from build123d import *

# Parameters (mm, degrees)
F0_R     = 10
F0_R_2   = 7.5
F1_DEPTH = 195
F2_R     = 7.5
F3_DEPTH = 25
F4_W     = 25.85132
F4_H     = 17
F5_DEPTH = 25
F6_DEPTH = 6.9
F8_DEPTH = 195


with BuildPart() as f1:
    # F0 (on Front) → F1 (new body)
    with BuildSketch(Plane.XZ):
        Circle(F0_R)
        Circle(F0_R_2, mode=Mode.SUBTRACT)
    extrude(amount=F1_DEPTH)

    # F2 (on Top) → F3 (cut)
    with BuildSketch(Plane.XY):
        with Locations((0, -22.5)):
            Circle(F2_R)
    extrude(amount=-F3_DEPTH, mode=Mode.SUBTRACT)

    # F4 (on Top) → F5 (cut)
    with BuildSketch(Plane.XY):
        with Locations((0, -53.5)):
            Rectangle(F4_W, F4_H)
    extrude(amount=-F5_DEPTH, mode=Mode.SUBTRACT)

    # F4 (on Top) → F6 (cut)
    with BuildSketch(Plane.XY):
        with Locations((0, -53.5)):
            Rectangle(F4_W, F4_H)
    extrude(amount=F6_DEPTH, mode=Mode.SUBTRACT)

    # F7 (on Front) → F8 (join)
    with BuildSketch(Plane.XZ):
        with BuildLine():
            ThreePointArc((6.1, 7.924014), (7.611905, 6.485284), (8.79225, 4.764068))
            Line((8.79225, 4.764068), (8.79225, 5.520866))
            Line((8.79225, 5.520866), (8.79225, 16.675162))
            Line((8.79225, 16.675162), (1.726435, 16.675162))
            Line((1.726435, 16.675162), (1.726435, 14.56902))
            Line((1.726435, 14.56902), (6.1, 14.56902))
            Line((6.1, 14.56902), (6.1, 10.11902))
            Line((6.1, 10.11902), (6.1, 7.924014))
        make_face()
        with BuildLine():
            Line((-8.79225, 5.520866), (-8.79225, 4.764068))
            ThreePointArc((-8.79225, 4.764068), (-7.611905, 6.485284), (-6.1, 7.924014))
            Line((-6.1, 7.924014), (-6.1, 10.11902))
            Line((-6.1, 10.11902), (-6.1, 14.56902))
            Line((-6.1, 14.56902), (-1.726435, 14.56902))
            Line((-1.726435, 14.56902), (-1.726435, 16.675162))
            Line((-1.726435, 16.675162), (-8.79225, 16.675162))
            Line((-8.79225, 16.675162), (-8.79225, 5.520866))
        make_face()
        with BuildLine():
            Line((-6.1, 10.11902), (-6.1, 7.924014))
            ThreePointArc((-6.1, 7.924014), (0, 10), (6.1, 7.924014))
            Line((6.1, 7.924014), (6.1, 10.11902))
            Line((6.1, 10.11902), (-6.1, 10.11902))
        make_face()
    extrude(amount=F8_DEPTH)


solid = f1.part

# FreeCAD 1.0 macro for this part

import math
import FreeCAD as App
import Part
import Sketcher
Q = App.Units.Quantity


def add_polygon(sketch, points):
    """Adds a closed chain of lines whose ends are joined by coincident constraints."""
    first, n = sketch.GeometryCount, len(points)
    for a, b in zip(points, points[1:] + points[:1]):
        sketch.addGeometry(Part.LineSegment(App.Vector(*a, 0), App.Vector(*b, 0)), False)
    for i in range(n):
        sketch.addConstraint(Sketcher.Constraint("Coincident", first + i, 2, first + (i + 1) % n, 1))

doc = App.newDocument("Part")
params = doc.addObject("Spreadsheet::Sheet", "Params")
for row, (alias, value) in enumerate([
    ("sketch1_diameter", "20 mm"),
    ("sketch1_diameter2", "15 mm"),
    ("pad1_length", "195 mm"),
    ("sketch2_diameter", "15 mm"),
    ("pocket1_length", "25 mm"),
    ("sketch3_height", "17 mm"),
    ("pocket2_length", "25 mm"),
    ("sketch4_height", "17 mm"),
    ("pocket3_length", "6.9 mm"),
    ("sketch5_radius", "9.999999 mm"),
    ("sketch5_width", "12.2 mm"),
    ("sketch5_height", "4.45 mm"),
    ("pad2_length", "195 mm"),
], start=1):
    params.set(f"A{row}", alias)
    params.set(f"B{row}", "=" + value)
    params.setAlias(f"B{row}", alias)

body = doc.addObject("PartDesign::Body", "Body")

sketch1 = body.newObject("Sketcher::SketchObject", "Sketch")
sketch1.AttachmentSupport = (doc.getObject("XZ_Plane"), [""])
sketch1.MapMode = "FlatFace"
sketch1.addGeometry(Part.Circle(App.Vector(0, 0, 0), App.Vector(0, 0, 1), 10), False)
sketch1.addGeometry(Part.Circle(App.Vector(0, 0, 0), App.Vector(0, 0, 1), 8), False)
sketch1.addConstraint(Sketcher.Constraint("Coincident", 0, 3, -1, 1))
sketch1.addConstraint(Sketcher.Constraint("Coincident", 1, 3, -1, 1))
sketch1.addConstraint(Sketcher.Constraint("Diameter", 0, Q("20 mm")))
sketch1.addConstraint(Sketcher.Constraint("Diameter", 1, Q("15 mm")))
sketch1.setExpression("Constraints[2]", "Params.sketch1_diameter")
sketch1.setExpression("Constraints[3]", "Params.sketch1_diameter2")
pad1 = body.newObject("PartDesign::Pad", "Pad")
pad1.Profile = sketch1
pad1.setExpression("Length", "Params.pad1_length")

sketch2 = body.newObject("Sketcher::SketchObject", "Sketch001")
sketch2.AttachmentSupport = (doc.getObject("XY_Plane"), [""])
sketch2.MapMode = "FlatFace"
sketch2.addGeometry(Part.Circle(App.Vector(0, -22, 0), App.Vector(0, 0, 1), 8), False)
sketch2.addConstraint(Sketcher.Constraint("PointOnObject", 0, 3, -2))
sketch2.addConstraint(Sketcher.Constraint("Diameter", 0, Q("15 mm")))
sketch2.addConstraint(Sketcher.Constraint("DistanceY", 0, 3, -1, 1, Q("22.5 mm")))
sketch2.setExpression("Constraints[1]", "Params.sketch2_diameter")
pocket1 = body.newObject("PartDesign::Pocket", "Pocket")
pocket1.Profile = sketch2
pocket1.setExpression("Length", "Params.pocket1_length")

sketch3 = body.newObject("Sketcher::SketchObject", "Sketch002")
sketch3.AttachmentSupport = (doc.getObject("XY_Plane"), [""])
sketch3.MapMode = "FlatFace"
add_polygon(sketch3, [(-13, -45), (-13, -62), (13, -62), (13, -45)])
sketch3.addConstraint(Sketcher.Constraint("Vertical", 0))
sketch3.addConstraint(Sketcher.Constraint("Horizontal", 1))
sketch3.addConstraint(Sketcher.Constraint("Vertical", 2))
sketch3.addConstraint(Sketcher.Constraint("Horizontal", 3))
sketch3.addConstraint(Sketcher.Constraint("DistanceY", 0, 2, 0, 1, Q("17 mm")))
sketch3.addConstraint(Sketcher.Constraint("DistanceY", 0, 2, -1, 1, Q("62 mm")))
sketch3.addConstraint(Sketcher.Constraint("DistanceX", 1, 1, 1, 2, Q("25.85132 mm")))
sketch3.addConstraint(Sketcher.Constraint("DistanceX", 0, 2, -1, 1, Q("12.92566 mm")))
sketch3.setExpression("Constraints[8]", "Params.sketch3_height")
pocket2 = body.newObject("PartDesign::Pocket", "Pocket001")
pocket2.Profile = sketch3
pocket2.setExpression("Length", "Params.pocket2_length")

sketch4 = body.newObject("Sketcher::SketchObject", "Sketch003")
sketch4.AttachmentSupport = (doc.getObject("XY_Plane"), [""])
sketch4.MapMode = "FlatFace"
add_polygon(sketch4, [(-13, -45), (-13, -62), (13, -62), (13, -45)])
sketch4.addConstraint(Sketcher.Constraint("Vertical", 0))
sketch4.addConstraint(Sketcher.Constraint("Horizontal", 1))
sketch4.addConstraint(Sketcher.Constraint("Vertical", 2))
sketch4.addConstraint(Sketcher.Constraint("Horizontal", 3))
sketch4.addConstraint(Sketcher.Constraint("DistanceY", 0, 2, 0, 1, Q("17 mm")))
sketch4.addConstraint(Sketcher.Constraint("DistanceY", 0, 2, -1, 1, Q("62 mm")))
sketch4.addConstraint(Sketcher.Constraint("DistanceX", 1, 1, 1, 2, Q("25.85132 mm")))
sketch4.addConstraint(Sketcher.Constraint("DistanceX", 0, 2, -1, 1, Q("12.92566 mm")))
sketch4.setExpression("Constraints[8]", "Params.sketch4_height")
pocket3 = body.newObject("PartDesign::Pocket", "Pocket002")
pocket3.Profile = sketch4
pocket3.setExpression("Length", "Params.pocket3_length")
pocket3.Reversed = True

sketch5 = body.newObject("Sketcher::SketchObject", "Sketch004")
sketch5.AttachmentSupport = (doc.getObject("XZ_Plane"), [""])
sketch5.MapMode = "FlatFace"
sketch5.addGeometry(Part.ArcOfCircle(Part.Circle(App.Vector(0, 0, 0), App.Vector(0, 0, 1), 10), math.radians(28), math.radians(52)), False)
sketch5.addGeometry(Part.LineSegment(App.Vector(8.8, 4.8, 0), App.Vector(8.8, 16.7, 0)), False)
sketch5.addGeometry(Part.LineSegment(App.Vector(8.8, 16.7, 0), App.Vector(1.7, 16.7, 0)), False)
sketch5.addGeometry(Part.LineSegment(App.Vector(1.7, 16.7, 0), App.Vector(1.7, 14.6, 0)), False)
sketch5.addGeometry(Part.LineSegment(App.Vector(1.7, 14.6, 0), App.Vector(6.1, 14.6, 0)), False)
sketch5.addGeometry(Part.LineSegment(App.Vector(6.1, 14.6, 0), App.Vector(6.1, 10.1, 0)), False)
sketch5.addGeometry(Part.LineSegment(App.Vector(6.1, 10.1, 0), App.Vector(-6.1, 10.1, 0)), False)
sketch5.addGeometry(Part.LineSegment(App.Vector(-6.1, 10.1, 0), App.Vector(-6.1, 14.6, 0)), False)
sketch5.addGeometry(Part.LineSegment(App.Vector(-6.1, 14.6, 0), App.Vector(-1.7, 14.6, 0)), False)
sketch5.addGeometry(Part.LineSegment(App.Vector(-1.7, 14.6, 0), App.Vector(-1.7, 16.7, 0)), False)
sketch5.addGeometry(Part.LineSegment(App.Vector(-1.7, 16.7, 0), App.Vector(-8.8, 16.7, 0)), False)
sketch5.addGeometry(Part.LineSegment(App.Vector(-8.8, 16.7, 0), App.Vector(-8.8, 4.8, 0)), False)
sketch5.addGeometry(Part.ArcOfCircle(Part.Circle(App.Vector(0, 0, 0), App.Vector(0, 0, 1), 10), math.radians(128), math.radians(152)), False)
sketch5.addGeometry(Part.ArcOfCircle(Part.Circle(App.Vector(0, 0, 0), App.Vector(0, 0, 1), 10), math.radians(52), math.radians(128)), False)
sketch5.addConstraint(Sketcher.Constraint("Coincident", 0, 1, 1, 1))
sketch5.addConstraint(Sketcher.Constraint("Coincident", 1, 2, 2, 1))
sketch5.addConstraint(Sketcher.Constraint("Coincident", 2, 2, 3, 1))
sketch5.addConstraint(Sketcher.Constraint("Coincident", 3, 2, 4, 1))
sketch5.addConstraint(Sketcher.Constraint("Coincident", 4, 2, 5, 1))
sketch5.addConstraint(Sketcher.Constraint("Coincident", 5, 2, 6, 1))
sketch5.addConstraint(Sketcher.Constraint("Coincident", 6, 2, 7, 1))
sketch5.addConstraint(Sketcher.Constraint("Coincident", 7, 2, 8, 1))
sketch5.addConstraint(Sketcher.Constraint("Coincident", 8, 2, 9, 1))
sketch5.addConstraint(Sketcher.Constraint("Coincident", 9, 2, 10, 1))
sketch5.addConstraint(Sketcher.Constraint("Coincident", 10, 2, 11, 1))
sketch5.addConstraint(Sketcher.Constraint("Coincident", 11, 2, 12, 2))
sketch5.addConstraint(Sketcher.Constraint("Tangent", 12, 1, 13, 2))
sketch5.addConstraint(Sketcher.Constraint("Tangent", 13, 1, 0, 2))
sketch5.addConstraint(Sketcher.Constraint("Vertical", 1))
sketch5.addConstraint(Sketcher.Constraint("Horizontal", 2))
sketch5.addConstraint(Sketcher.Constraint("Vertical", 3))
sketch5.addConstraint(Sketcher.Constraint("Horizontal", 4))
sketch5.addConstraint(Sketcher.Constraint("Vertical", 5))
sketch5.addConstraint(Sketcher.Constraint("Horizontal", 6))
sketch5.addConstraint(Sketcher.Constraint("Vertical", 7))
sketch5.addConstraint(Sketcher.Constraint("Horizontal", 8))
sketch5.addConstraint(Sketcher.Constraint("Vertical", 9))
sketch5.addConstraint(Sketcher.Constraint("Horizontal", 10))
sketch5.addConstraint(Sketcher.Constraint("Vertical", 11))
sketch5.addConstraint(Sketcher.Constraint("Coincident", 13, 3, -1, 1))
sketch5.addConstraint(Sketcher.Constraint("Equal", 0, 12))
sketch5.addConstraint(Sketcher.Constraint("Symmetric", 4, 2, 7, 2, -2))
sketch5.addConstraint(Sketcher.Constraint("Symmetric", 2, 2, 9, 2, -2))
sketch5.addConstraint(Sketcher.Constraint("Horizontal", 0, 1, 11, 2))
sketch5.addConstraint(Sketcher.Constraint("Horizontal", 12, 1, 13, 1))
sketch5.addConstraint(Sketcher.Constraint("Vertical", 7, 2, 12, 1))
sketch5.addConstraint(Sketcher.Constraint("Radius", 13, Q("9.999999 mm")))
sketch5.addConstraint(Sketcher.Constraint("DistanceX", 6, 2, 6, 1, Q("12.2 mm")))
sketch5.addConstraint(Sketcher.Constraint("DistanceY", 5, 2, 5, 1, Q("4.45 mm")))
sketch5.addConstraint(Sketcher.Constraint("Radius", 0, Q("9.999988 mm")))
sketch5.addConstraint(Sketcher.Constraint("DistanceX", 2, 2, 2, 1, Q("7.065815 mm")))
sketch5.addConstraint(Sketcher.Constraint("DistanceX", 4, 1, 4, 2, Q("4.373565 mm")))
sketch5.addConstraint(Sketcher.Constraint("DistanceY", 1, 1, 1, 2, Q("11.911094 mm")))
sketch5.addConstraint(Sketcher.Constraint("DistanceY", 3, 2, 3, 1, Q("2.106142 mm")))
sketch5.setExpression("Constraints[32]", "Params.sketch5_radius")
sketch5.setExpression("Constraints[33]", "Params.sketch5_width")
sketch5.setExpression("Constraints[34]", "Params.sketch5_height")
pad2 = body.newObject("PartDesign::Pad", "Pad001")
pad2.Profile = sketch5
pad2.setExpression("Length", "Params.pad2_length")

doc.recompute()
